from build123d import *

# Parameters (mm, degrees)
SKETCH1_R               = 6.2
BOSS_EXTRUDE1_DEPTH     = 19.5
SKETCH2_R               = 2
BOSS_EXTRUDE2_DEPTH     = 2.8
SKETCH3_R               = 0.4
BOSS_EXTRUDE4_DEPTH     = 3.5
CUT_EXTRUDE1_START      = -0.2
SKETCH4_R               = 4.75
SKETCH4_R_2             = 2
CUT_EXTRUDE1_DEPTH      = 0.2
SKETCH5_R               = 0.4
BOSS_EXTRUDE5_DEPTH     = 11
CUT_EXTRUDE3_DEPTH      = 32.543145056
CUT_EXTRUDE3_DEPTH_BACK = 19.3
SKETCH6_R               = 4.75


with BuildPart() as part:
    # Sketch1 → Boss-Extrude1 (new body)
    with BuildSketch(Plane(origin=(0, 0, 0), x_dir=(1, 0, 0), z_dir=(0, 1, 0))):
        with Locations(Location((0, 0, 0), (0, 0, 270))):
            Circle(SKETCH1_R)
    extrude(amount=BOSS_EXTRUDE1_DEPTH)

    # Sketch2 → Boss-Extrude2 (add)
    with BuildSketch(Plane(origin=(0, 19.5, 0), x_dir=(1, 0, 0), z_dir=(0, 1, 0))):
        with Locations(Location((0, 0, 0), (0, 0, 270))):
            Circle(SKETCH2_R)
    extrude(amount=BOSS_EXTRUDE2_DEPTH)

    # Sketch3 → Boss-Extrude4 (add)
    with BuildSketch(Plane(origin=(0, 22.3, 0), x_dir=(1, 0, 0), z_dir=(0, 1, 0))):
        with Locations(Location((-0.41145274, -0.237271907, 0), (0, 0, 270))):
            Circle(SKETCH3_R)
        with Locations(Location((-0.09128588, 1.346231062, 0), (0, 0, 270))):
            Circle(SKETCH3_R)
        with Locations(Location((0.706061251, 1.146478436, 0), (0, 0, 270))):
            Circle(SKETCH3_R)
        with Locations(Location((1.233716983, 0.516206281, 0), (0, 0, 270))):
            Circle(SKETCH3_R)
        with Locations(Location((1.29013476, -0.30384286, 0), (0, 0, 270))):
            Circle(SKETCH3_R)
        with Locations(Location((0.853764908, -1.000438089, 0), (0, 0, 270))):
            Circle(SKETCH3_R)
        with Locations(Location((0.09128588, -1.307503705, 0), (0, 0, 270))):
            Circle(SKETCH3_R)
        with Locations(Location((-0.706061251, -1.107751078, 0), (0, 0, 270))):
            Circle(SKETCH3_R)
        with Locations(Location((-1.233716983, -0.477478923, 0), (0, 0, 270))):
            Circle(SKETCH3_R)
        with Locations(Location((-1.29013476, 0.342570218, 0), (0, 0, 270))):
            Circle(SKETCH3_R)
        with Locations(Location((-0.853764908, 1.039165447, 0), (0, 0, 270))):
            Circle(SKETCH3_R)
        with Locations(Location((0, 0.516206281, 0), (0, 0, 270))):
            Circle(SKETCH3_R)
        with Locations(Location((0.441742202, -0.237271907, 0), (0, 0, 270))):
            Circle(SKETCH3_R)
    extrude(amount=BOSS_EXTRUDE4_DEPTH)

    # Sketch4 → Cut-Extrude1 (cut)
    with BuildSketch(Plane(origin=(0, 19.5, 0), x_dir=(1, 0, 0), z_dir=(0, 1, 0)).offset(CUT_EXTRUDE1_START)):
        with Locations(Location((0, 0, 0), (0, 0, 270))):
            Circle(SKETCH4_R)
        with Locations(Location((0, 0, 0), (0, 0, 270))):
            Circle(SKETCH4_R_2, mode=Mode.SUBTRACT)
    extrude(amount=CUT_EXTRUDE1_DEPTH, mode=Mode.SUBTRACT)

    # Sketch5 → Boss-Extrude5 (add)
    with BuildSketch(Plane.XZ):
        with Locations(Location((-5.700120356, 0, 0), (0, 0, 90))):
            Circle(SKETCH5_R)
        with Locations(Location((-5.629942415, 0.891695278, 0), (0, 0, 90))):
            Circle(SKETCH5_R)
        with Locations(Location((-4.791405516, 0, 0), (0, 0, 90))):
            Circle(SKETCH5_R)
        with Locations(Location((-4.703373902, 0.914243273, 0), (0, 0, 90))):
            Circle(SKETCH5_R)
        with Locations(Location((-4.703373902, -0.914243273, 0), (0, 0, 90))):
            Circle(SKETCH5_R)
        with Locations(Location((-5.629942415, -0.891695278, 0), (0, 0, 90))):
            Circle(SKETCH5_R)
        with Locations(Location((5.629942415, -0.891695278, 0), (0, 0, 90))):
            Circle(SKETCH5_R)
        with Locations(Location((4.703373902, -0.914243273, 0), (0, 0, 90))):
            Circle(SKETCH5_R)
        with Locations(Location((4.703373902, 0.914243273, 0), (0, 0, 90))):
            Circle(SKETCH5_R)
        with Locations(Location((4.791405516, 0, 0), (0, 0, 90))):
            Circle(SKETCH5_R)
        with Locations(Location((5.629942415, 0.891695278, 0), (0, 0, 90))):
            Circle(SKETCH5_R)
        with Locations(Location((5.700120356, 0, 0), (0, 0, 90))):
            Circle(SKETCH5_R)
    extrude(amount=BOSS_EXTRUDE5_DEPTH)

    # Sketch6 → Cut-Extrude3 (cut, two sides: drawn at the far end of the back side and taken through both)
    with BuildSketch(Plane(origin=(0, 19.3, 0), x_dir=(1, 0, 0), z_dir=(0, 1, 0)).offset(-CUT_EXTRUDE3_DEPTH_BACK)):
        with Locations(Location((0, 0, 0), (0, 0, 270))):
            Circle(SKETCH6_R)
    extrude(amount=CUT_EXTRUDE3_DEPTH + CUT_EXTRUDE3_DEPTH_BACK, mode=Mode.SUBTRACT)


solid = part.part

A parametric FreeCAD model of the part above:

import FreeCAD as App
import Part
import Sketcher
from FreeCAD import Vector
Q = App.Units.Quantity

doc = App.newDocument("Part")
body = doc.addObject("PartDesign::Body", "Body")

sketch1 = body.newObject("Sketcher::SketchObject", "Sketch")
sketch1.AttachmentSupport = (doc.getObject("XZ_Plane"), [""])
sketch1.MapMode = "FlatFace"
sketch1.addGeometry(Part.Circle(Vector(0, 0, 0), Vector(0, 0, 1), 6), False)
sketch1.addConstraint([
    Sketcher.Constraint("Coincident", 0, 3, -1, 1),
    Sketcher.Constraint("Diameter", 0, Q("12.4 mm")),
])
pad1 = body.newObject("PartDesign::Pad", "Pad")
pad1.Profile = sketch1
pad1.Length = 19.5
pad1.Reversed = True

sketch2 = body.newObject("Sketcher::SketchObject", "Sketch001")
sketch2.AttachmentSupport = (doc.getObject("XZ_Plane"), [""])
sketch2.MapMode = "FlatFace"
sketch2.AttachmentOffset = App.Placement(Vector(0, 0, -19.5), App.Rotation())
sketch2.addGeometry(Part.Circle(Vector(0, 0, 0), Vector(0, 0, 1), 2), False)
sketch2.addConstraint([
    Sketcher.Constraint("Coincident", 0, 3, -1, 1),
    Sketcher.Constraint("Diameter", 0, Q("4 mm")),
])
pad2 = body.newObject("PartDesign::Pad", "Pad001")
pad2.Profile = sketch2
pad2.Length = 2.8
pad2.Reversed = True

sketch3 = body.newObject("Sketcher::SketchObject", "Sketch002")
sketch3.AttachmentSupport = (doc.getObject("XZ_Plane"), [""])
sketch3.MapMode = "FlatFace"
sketch3.AttachmentOffset = App.Placement(Vector(0, 0, -22.3), App.Rotation())
sketch3.addGeometry([
    Part.Circle(Vector(-0.41, 0.24, 0), Vector(0, 0, 1), 0.4),
    Part.Circle(Vector(-0.09, -1.35, 0), Vector(0, 0, 1), 0.4),
    Part.Circle(Vector(0.71, -1.15, 0), Vector(0, 0, 1), 0.4),
    Part.Circle(Vector(1.23, -0.52, 0), Vector(0, 0, 1), 0.4),
    Part.Circle(Vector(1.29, 0.3, 0), Vector(0, 0, 1), 0.4),
    Part.Circle(Vector(0.85, 1, 0), Vector(0, 0, 1), 0.4),
    Part.Circle(Vector(0.09, 1.31, 0), Vector(0, 0, 1), 0.4),
    Part.Circle(Vector(-0.71, 1.11, 0), Vector(0, 0, 1), 0.4),
    Part.Circle(Vector(-1.23, 0.48, 0), Vector(0, 0, 1), 0.4),
    Part.Circle(Vector(-1.29, -0.34, 0), Vector(0, 0, 1), 0.4),
    Part.Circle(Vector(-0.85, -1.04, 0), Vector(0, 0, 1), 0.4),
    Part.Circle(Vector(0, -0.52, 0), Vector(0, 0, 1), 0.4),
    Part.Circle(Vector(0.44, 0.24, 0), Vector(0, 0, 1), 0.4),
], False)
sketch3.addConstraint([
    Sketcher.Constraint("Equal", 0, 1),
    Sketcher.Constraint("Equal", 1, 2),
    Sketcher.Constraint("Equal", 2, 3),
    Sketcher.Constraint("Equal", 3, 4),
    Sketcher.Constraint("Equal", 4, 5),
    Sketcher.Constraint("Equal", 5, 6),
    Sketcher.Constraint("Equal", 6, 7),
    Sketcher.Constraint("Equal", 7, 8),
    Sketcher.Constraint("Equal", 8, 9),
    Sketcher.Constraint("Equal", 9, 10),
    Sketcher.Constraint("Equal", 10, 11),
    Sketcher.Constraint("Equal", 11, 12),
    Sketcher.Constraint("PointOnObject", 11, 3, -2),
    Sketcher.Constraint("Horizontal", 3, 3, 11, 3),
    Sketcher.Constraint("Horizontal", 0, 3, 12, 3),
    Sketcher.Constraint("Diameter", 0, Q("0.8 mm")),
    Sketcher.Constraint("DistanceY", -1, 1, 0, 3, Q("0.237272 mm")),
    Sketcher.Constraint("DistanceY", 1, 3, -1, 1, Q("1.346231 mm")),
    Sketcher.Constraint("DistanceX", -1, 1, 2, 3, Q("0.706061 mm")),
    Sketcher.Constraint("DistanceY", 2, 3, -1, 1, Q("1.146478 mm")),
    Sketcher.Constraint("DistanceY", -1, 1, 5, 3, Q("1.000438 mm")),
    Sketcher.Constraint("DistanceX", 7, 3, -1, 1, Q("0.706061 mm")),
    Sketcher.Constraint("DistanceY", -1, 1, 7, 3, Q("1.107751 mm")),
    Sketcher.Constraint("DistanceY", -1, 1, 8, 3, Q("0.477479 mm")),
    Sketcher.Constraint("DistanceY", 9, 3, -1, 1, Q("0.34257 mm")),
    Sketcher.Constraint("DistanceX", 0, 3, 3, 3, Q("1.64517 mm")),
    Sketcher.Constraint("DistanceY", 3, 3, 0, 3, Q("0.753478 mm")),
    Sketcher.Constraint("DistanceY", 3, 3, 4, 3, Q("0.820049 mm")),
    Sketcher.Constraint("DistanceX", 1, 3, 4, 3, Q("1.381421 mm")),
    Sketcher.Constraint("DistanceX", 5, 3, 4, 3, Q("0.43637 mm")),
    Sketcher.Constraint("DistanceX", 6, 3, 5, 3, Q("0.762479 mm")),
    Sketcher.Constraint("DistanceX", 0, 3, 6, 3, Q("0.502739 mm")),
    Sketcher.Constraint("DistanceY", 0, 3, 6, 3, Q("1.070232 mm")),
    Sketcher.Constraint("DistanceX", 7, 3, 0, 3, Q("0.294609 mm")),
    Sketcher.Constraint("DistanceX", 8, 3, 1, 3, Q("1.142431 mm")),
    Sketcher.Constraint("DistanceX", 9, 3, 1, 3, Q("1.198849 mm")),
    Sketcher.Constraint("DistanceX", 10, 3, 1, 3, Q("0.762479 mm")),
    Sketcher.Constraint("DistanceY", 10, 3, 11, 3, Q("0.522959 mm")),
    Sketcher.Constraint("DistanceX", -1, 1, 12, 3, Q("0.441742 mm")),
])
pad3 = body.newObject("PartDesign::Pad", "Pad002")
pad3.Profile = sketch3
pad3.Length = 3.5
pad3.Reversed = True

sketch4 = body.newObject("Sketcher::SketchObject", "Sketch003")
sketch4.AttachmentSupport = (doc.getObject("XZ_Plane"), [""])
sketch4.MapMode = "FlatFace"
sketch4.AttachmentOffset = App.Placement(Vector(0, 0, -19.3), App.Rotation())
sketch4.addGeometry([
    Part.Circle(Vector(0, 0, 0), Vector(0, 0, 1), 4.8),
    Part.Circle(Vector(0, 0, 0), Vector(0, 0, 1), 2),
], False)
sketch4.addConstraint([
    Sketcher.Constraint("Coincident", 0, 3, -1, 1),
    Sketcher.Constraint("Coincident", 1, 3, -1, 1),
    Sketcher.Constraint("Diameter", 1, Q("4 mm")),
    Sketcher.Constraint("Diameter", 0, Q("9.5 mm")),
])
pocket1 = body.newObject("PartDesign::Pocket", "Pocket")
pocket1.Profile = sketch4
pocket1.Length = 0.2

sketch5 = body.newObject("Sketcher::SketchObject", "Sketch004")
sketch5.AttachmentSupport = (doc.getObject("XZ_Plane"), [""])
sketch5.MapMode = "FlatFace"
sketch5.addGeometry([
    Part.Circle(Vector(-5.7, 0, 0), Vector(0, 0, 1), 0.4),
    Part.Circle(Vector(-5.63, 0.89, 0), Vector(0, 0, 1), 0.4),
    Part.Circle(Vector(-4.79, 0, 0), Vector(0, 0, 1), 0.4),
    Part.Circle(Vector(-4.7, 0.91, 0), Vector(0, 0, 1), 0.4),
    Part.Circle(Vector(-4.7, -0.91, 0), Vector(0, 0, 1), 0.4),
    Part.Circle(Vector(-5.63, -0.89, 0), Vector(0, 0, 1), 0.4),
    Part.Circle(Vector(5.63, -0.89, 0), Vector(0, 0, 1), 0.4),
    Part.Circle(Vector(4.7, -0.91, 0), Vector(0, 0, 1), 0.4),
    Part.Circle(Vector(4.7, 0.91, 0), Vector(0, 0, 1), 0.4),
    Part.Circle(Vector(4.79, 0, 0), Vector(0, 0, 1), 0.4),
    Part.Circle(Vector(5.63, 0.89, 0), Vector(0, 0, 1), 0.4),
    Part.Circle(Vector(5.7, 0, 0), Vector(0, 0, 1), 0.4),
], False)
sketch5.addConstraint([
    Sketcher.Constraint("Equal", 0, 1),
    Sketcher.Constraint("Equal", 1, 2),
    Sketcher.Constraint("Equal", 2, 3),
    Sketcher.Constraint("Equal", 3, 4),
    Sketcher.Constraint("Equal", 4, 5),
    Sketcher.Constraint("Equal", 5, 6),
    Sketcher.Constraint("Equal", 6, 7),
    Sketcher.Constraint("Equal", 7, 8),
    Sketcher.Constraint("Equal", 8, 9),
    Sketcher.Constraint("Equal", 9, 10),
    Sketcher.Constraint("Equal", 10, 11),
    Sketcher.Constraint("Symmetric", 1, 3, 6, 3, -1, 1),
    Sketcher.Constraint("Symmetric", 3, 3, 7, 3, -1, 1),
    Sketcher.Constraint("Symmetric", 4, 3, 8, 3, -1, 1),
    Sketcher.Constraint("Symmetric", 2, 3, 9, 3, -1, 1),
    Sketcher.Constraint("Symmetric", 5, 3, 10, 3, -1, 1),
    Sketcher.Constraint("Symmetric", 0, 3, 11, 3, -1, 1),
    Sketcher.Constraint("Symmetric", 5, 3, 6, 3, -2),
    Sketcher.Constraint("Symmetric", 4, 3, 7, 3, -2),
    Sketcher.Constraint("PointOnObject", 0, 3, -1),
    Sketcher.Constraint("PointOnObject", 2, 3, -1),
    Sketcher.Constraint("Diameter", 0, Q("0.8 mm")),
    Sketcher.Constraint("DistanceX", 0, 3, -1, 1, Q("5.70012 mm")),
    Sketcher.Constraint("DistanceX", 2, 3, 3, 3, Q("0.088032 mm")),
    Sketcher.Constraint("DistanceX", 1, 3, 3, 3, Q("0.926569 mm")),
    Sketcher.Constraint("DistanceY", 4, 3, 1, 3, Q("1.805939 mm")),
    Sketcher.Constraint("DistanceY", 5, 3, 1, 3, Q("1.783391 mm")),
    Sketcher.Constraint("DistanceX", 2, 3, 7, 3, Q("9.494779 mm")),
])
pad4 = body.newObject("PartDesign::Pad", "Pad003")
pad4.Profile = sketch5
pad4.Length = 11

sketch6 = body.newObject("Sketcher::SketchObject", "Sketch005")
sketch6.AttachmentSupport = (doc.getObject("XZ_Plane"), [""])
sketch6.MapMode = "FlatFace"
sketch6.AttachmentOffset = App.Placement(Vector(0, 0, -19.3), App.Rotation())
sketch6.addGeometry(Part.Circle(Vector(0, 0, 0), Vector(0, 0, 1), 4.8), False)
sketch6.addConstraint([
    Sketcher.Constraint("Coincident", 0, 3, -1, 1),
    Sketcher.Constraint("Diameter", 0, Q("9.5 mm")),
])
pocket2 = body.newObject("PartDesign::Pocket", "Pocket001")
pocket2.Profile = sketch6
pocket2.Type = "TwoLengths"
pocket2.Length = 32.543145
pocket2.Length2 = 19.3

doc.recompute()
